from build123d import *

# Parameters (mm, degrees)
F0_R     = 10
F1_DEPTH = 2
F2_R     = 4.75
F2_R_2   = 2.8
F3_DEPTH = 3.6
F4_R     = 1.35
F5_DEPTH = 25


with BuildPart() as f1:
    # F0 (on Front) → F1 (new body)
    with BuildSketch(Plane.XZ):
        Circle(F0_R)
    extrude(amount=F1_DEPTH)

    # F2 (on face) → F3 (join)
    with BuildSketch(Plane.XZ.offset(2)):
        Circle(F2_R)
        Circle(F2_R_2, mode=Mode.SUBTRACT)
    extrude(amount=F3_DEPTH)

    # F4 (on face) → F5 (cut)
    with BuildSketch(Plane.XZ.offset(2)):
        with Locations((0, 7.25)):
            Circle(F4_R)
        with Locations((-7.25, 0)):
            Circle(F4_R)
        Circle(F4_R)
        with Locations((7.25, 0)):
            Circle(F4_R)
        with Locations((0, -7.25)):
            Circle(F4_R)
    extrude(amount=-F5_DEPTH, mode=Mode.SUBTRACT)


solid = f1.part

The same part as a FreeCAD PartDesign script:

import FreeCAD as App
import Part
import Sketcher

doc = App.newDocument("Part")
params = doc.addObject("Spreadsheet::Sheet", "Params")
for row, (alias, value) in enumerate([
    ("sketch1_diameter", "20 mm"),
    ("pad1_length", "2 mm"),
    ("sketch2_diameter", "9.5 mm"),
    ("sketch2_diameter2", "5.6 mm"),
    ("pad2_length", "3.6 mm"),
    ("sketch3_diameter", "2.7 mm"),
    ("pocket1_length", "25 mm"),
], start=1):
    params.set(f"A{row}", alias)
    params.set(f"B{row}", "=" + value)
    params.setAlias(f"B{row}", alias)

body = doc.addObject("PartDesign::Body", "Body")

# Sketch on XZ plane
sketch1 = body.newObject("Sketcher::SketchObject", "Sketch")
sketch1.AttachmentSupport = (doc.getObject("XZ_Plane"), [""])
sketch1.MapMode = "FlatFace"
sketch1.addGeometry(Part.Circle(App.Vector(0, 0, 0), App.Vector(0, 0, 1), 10), False)
sketch1.addConstraint([
    Sketcher.Constraint("Coincident", 0, 3, -1, 1),
    Sketcher.Constraint("Diameter", 0, 20.0),
])
sketch1.setExpression("Constraints[1]", "Params.sketch1_diameter")
pad1 = body.newObject("PartDesign::Pad", "Pad")
pad1.Profile = sketch1
pad1.setExpression("Length", "Params.pad1_length")

# Sketch on XZ plane
sketch2 = body.newObject("Sketcher::SketchObject", "Sketch001")
sketch2.AttachmentSupport = (doc.getObject("XZ_Plane"), [""])
sketch2.MapMode = "FlatFace"
sketch2.AttachmentOffset = App.Placement(App.Vector(0, 0, 2), App.Rotation())
sketch2.addGeometry([
    Part.Circle(App.Vector(0, 0, 0), App.Vector(0, 0, 1), 4.75),
    Part.Circle(App.Vector(0, 0, 0), App.Vector(0, 0, 1), 2.8),
], False)
sketch2.addConstraint([
    Sketcher.Constraint("Coincident", 0, 3, -1, 1),
    Sketcher.Constraint("Coincident", 1, 3, -1, 1),
    Sketcher.Constraint("Diameter", 0, 9.5),
    Sketcher.Constraint("Diameter", 1, 5.6),
])
sketch2.setExpression("Constraints[2]", "Params.sketch2_diameter")
sketch2.setExpression("Constraints[3]", "Params.sketch2_diameter2")
pad2 = body.newObject("PartDesign::Pad", "Pad001")
pad2.Profile = sketch2
pad2.setExpression("Length", "Params.pad2_length")

# Sketch on XZ plane
sketch3 = body.newObject("Sketcher::SketchObject", "Sketch002")
sketch3.AttachmentSupport = (doc.getObject("XZ_Plane"), [""])
sketch3.MapMode = "FlatFace"
sketch3.AttachmentOffset = App.Placement(App.Vector(0, 0, 2), App.Rotation())
sketch3.addGeometry([
    Part.Circle(App.Vector(0, 7.25, 0), App.Vector(0, 0, 1), 1.35),  # 0
    Part.Circle(App.Vector(-7.25, 0, 0), App.Vector(0, 0, 1), 1.35),  # 1
    Part.Circle(App.Vector(0, 0, 0), App.Vector(0, 0, 1), 1.35),  # 2
    Part.Circle(App.Vector(7.25, 0, 0), App.Vector(0, 0, 1), 1.35),  # 3
    Part.Circle(App.Vector(0, -7.25, 0), App.Vector(0, 0, 1), 1.35),  # 4
], False)
sketch3.addConstraint([
    Sketcher.Constraint("Coincident", 2, 3, -1, 1),
    Sketcher.Constraint("Equal", 0, 1),
    Sketcher.Constraint("Equal", 1, 2),
    Sketcher.Constraint("Equal", 2, 3),
    Sketcher.Constraint("Equal", 3, 4),
    Sketcher.Constraint("Symmetric", 1, 3, 3, 3, -1, 1),
    Sketcher.Constraint("Symmetric", 0, 3, 4, 3, -1, 1),
    Sketcher.Constraint("PointOnObject", 0, 3, -2),
    Sketcher.Constraint("PointOnObject", 1, 3, -1),
    Sketcher.Constraint("Diameter", 0, 2.7),
    Sketcher.Constraint("DistanceX", 1, 3, 3, 3, 14.5),
    Sketcher.Constraint("DistanceY", 4, 3, 0, 3, 14.5),
])
sketch3.setExpression("Constraints[9]", "Params.sketch3_diameter")
pocket1 = body.newObject("PartDesign::Pocket", "Pocket")
pocket1.Profile = sketch3
pocket1.setExpression("Length", "Params.pocket1_length")

doc.recompute()
